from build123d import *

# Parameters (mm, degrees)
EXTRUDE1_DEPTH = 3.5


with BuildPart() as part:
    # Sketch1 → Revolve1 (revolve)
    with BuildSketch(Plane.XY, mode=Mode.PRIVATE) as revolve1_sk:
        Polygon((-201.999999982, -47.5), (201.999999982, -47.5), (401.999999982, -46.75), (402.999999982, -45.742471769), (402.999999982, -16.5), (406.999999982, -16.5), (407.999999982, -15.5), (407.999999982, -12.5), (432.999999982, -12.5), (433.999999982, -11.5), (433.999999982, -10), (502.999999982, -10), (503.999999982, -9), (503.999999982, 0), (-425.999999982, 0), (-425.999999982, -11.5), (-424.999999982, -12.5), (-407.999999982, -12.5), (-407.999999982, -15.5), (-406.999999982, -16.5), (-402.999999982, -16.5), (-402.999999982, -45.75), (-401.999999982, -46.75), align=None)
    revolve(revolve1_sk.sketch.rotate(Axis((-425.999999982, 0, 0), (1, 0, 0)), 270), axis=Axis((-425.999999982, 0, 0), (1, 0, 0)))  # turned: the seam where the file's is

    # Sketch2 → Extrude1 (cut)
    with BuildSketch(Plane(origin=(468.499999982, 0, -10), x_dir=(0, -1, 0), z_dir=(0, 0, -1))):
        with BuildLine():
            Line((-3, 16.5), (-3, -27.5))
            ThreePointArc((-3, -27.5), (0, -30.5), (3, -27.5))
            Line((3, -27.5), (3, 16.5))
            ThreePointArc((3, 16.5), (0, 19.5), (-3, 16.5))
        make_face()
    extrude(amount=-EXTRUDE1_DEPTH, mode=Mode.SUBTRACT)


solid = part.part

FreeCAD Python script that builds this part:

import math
import FreeCAD as App
import Part
import Sketcher
Q = App.Units.Quantity


def add_polygon(sketch, points):
    """Adds a closed chain of lines whose ends are joined by coincident constraints."""
    first, n = sketch.GeometryCount, len(points)
    for a, b in zip(points, points[1:] + points[:1]):
        sketch.addGeometry(Part.LineSegment(App.Vector(*a, 0), App.Vector(*b, 0)), False)
    for i in range(n):
        sketch.addConstraint(Sketcher.Constraint("Coincident", first + i, 2, first + (i + 1) % n, 1))

doc = App.newDocument("Part")
body = doc.addObject("PartDesign::Body", "Body")

# Sketch on XY plane
sketch1 = doc.addObject("Sketcher::SketchObject", "Sketch")
body.addObject(sketch1)
sketch1.AttachmentSupport = (doc.XY_Plane, [""])
sketch1.MapMode = "FlatFace"
add_polygon(sketch1, [(-202, -47.5), (202, -47.5), (402, -46.8), (403, -45.7), (403, -16.5), (407, -16.5), (408, -15.5), (408, -12.5), (433, -12.5), (434, -11.5), (434, -10), (503, -10), (504, -9), (504, 0), (-426, 0), (-426, -11.5), (-425, -12.5), (-408, -12.5), (-408, -15.5), (-407, -16.5), (-403, -16.5), (-403, -45.8), (-402, -46.8)])  # lines 0-22
sketch1.addConstraint([
    Sketcher.Constraint("Horizontal", 0),
    Sketcher.Constraint("Vertical", 3),
    Sketcher.Constraint("Horizontal", 4),
    Sketcher.Constraint("Vertical", 6),
    Sketcher.Constraint("Horizontal", 7),
    Sketcher.Constraint("Vertical", 9),
    Sketcher.Constraint("Horizontal", 10),
    Sketcher.Constraint("Vertical", 12),
    Sketcher.Constraint("Horizontal", 13),
    Sketcher.Constraint("Vertical", 14),
    Sketcher.Constraint("Horizontal", 16),
    Sketcher.Constraint("Vertical", 17),
    Sketcher.Constraint("Horizontal", 19),
    Sketcher.Constraint("Vertical", 20),
    Sketcher.Constraint("Symmetric", 6, 2, 16, 2, -2),
    Sketcher.Constraint("Symmetric", 4, 2, 18, 2, -2),
    Sketcher.Constraint("Symmetric", 1, 2, 21, 2, -2),
    Sketcher.Constraint("PointOnObject", 12, 2, -1),
    Sketcher.Constraint("Parallel", 5, 8),
    Sketcher.Constraint("Parallel", 8, 11),
    Sketcher.Constraint("Perpendicular", 11, 15),
    Sketcher.Constraint("Parallel", 15, 18),
    Sketcher.Constraint("Parallel", 18, 21),
    Sketcher.Constraint("Horizontal", 8, 2, 14, 2),
    Sketcher.Constraint("Horizontal", 5, 2, 17, 2),
    Sketcher.Constraint("Equal", 4, 19),
    Sketcher.Constraint("Equal", 5, 8),
    Sketcher.Constraint("Equal", 8, 11),
    Sketcher.Constraint("Equal", 18, 21),
    Sketcher.Constraint("Equal", 1, 22),
    Sketcher.Constraint("DistanceX", 0, 1, 0, 2, Q("404 mm")),
    Sketcher.Constraint("DistanceX", 4, 1, 4, 2, Q("4 mm")),
    Sketcher.Constraint("DistanceX", 7, 1, 7, 2, Q("25 mm")),
    Sketcher.Constraint("DistanceX", 10, 1, 10, 2, Q("69 mm")),
    Sketcher.Constraint("DistanceX", 13, 2, 13, 1, Q("930 mm")),
    Sketcher.Constraint("DistanceX", 16, 1, 16, 2, Q("17 mm")),
    Sketcher.Constraint("DistanceY", 6, 1, 6, 2, Q("3 mm")),
    Sketcher.Constraint("DistanceY", 12, 1, 12, 2, Q("9 mm")),
    Sketcher.Constraint("DistanceY", 9, 1, 9, 2, Q("1.5 mm")),
    Sketcher.Constraint("DistanceY", 14, 2, 14, 1, Q("11.5 mm")),
    Sketcher.Constraint("DistanceY", 0, 2, 3, 2, Q("31 mm")),
    Sketcher.Constraint("DistanceY", 20, 2, 20, 1, Q("29.25 mm")),
    Sketcher.Constraint("DistanceY", 3, 1, 3, 2, Q("29.242472 mm")),
])
revolution = doc.addObject("PartDesign::Revolution", "Revolution")
body.addObject(revolution)
revolution.Profile = sketch1
revolution.ReferenceAxis = (sketch1, ["H_Axis"])
revolution.Angle = 360

# Sketch on XY plane
sketch2 = doc.addObject("Sketcher::SketchObject", "Sketch001")
body.addObject(sketch2)
sketch2.AttachmentSupport = (doc.XY_Plane, [""])
sketch2.MapMode = "FlatFace"
sketch2.AttachmentOffset = App.Placement(App.Vector(0, 0, -10), App.Rotation())
sketch2.addGeometry([
    Part.LineSegment(App.Vector(452, 3, 0), App.Vector(496, 3, 0)),
    Part.ArcOfCircle(Part.Circle(App.Vector(496, 0, 0), App.Vector(0, 0, 1), 3), math.radians(-90), math.radians(90)),
    Part.LineSegment(App.Vector(496, -3, 0), App.Vector(452, -3, 0)),
    Part.ArcOfCircle(Part.Circle(App.Vector(452, 0, 0), App.Vector(0, 0, 1), 3), math.radians(90), math.radians(270)),
], False)
sketch2.addConstraint([
    Sketcher.Constraint("Tangent", 0, 2, 1, 2),
    Sketcher.Constraint("Tangent", 1, 1, 2, 1),
    Sketcher.Constraint("Tangent", 2, 2, 3, 2),
    Sketcher.Constraint("Tangent", 3, 1, 0, 1),
    Sketcher.Constraint("Horizontal", 0),
    Sketcher.Constraint("Horizontal", 2),
    Sketcher.Constraint("PointOnObject", 1, 3, -1),
    Sketcher.Constraint("Radius", 1, Q("3 mm")),
    Sketcher.Constraint("DistanceX", 0, 1, 0, 2, Q("44 mm")),
    Sketcher.Constraint("DistanceX", -1, 1, 1, 3, Q("496 mm")),
])
pocket1 = doc.addObject("PartDesign::Pocket", "Pocket")
body.addObject(pocket1)
pocket1.Profile = sketch2
pocket1.Length = 3.5
pocket1.Reversed = True

doc.recompute()
